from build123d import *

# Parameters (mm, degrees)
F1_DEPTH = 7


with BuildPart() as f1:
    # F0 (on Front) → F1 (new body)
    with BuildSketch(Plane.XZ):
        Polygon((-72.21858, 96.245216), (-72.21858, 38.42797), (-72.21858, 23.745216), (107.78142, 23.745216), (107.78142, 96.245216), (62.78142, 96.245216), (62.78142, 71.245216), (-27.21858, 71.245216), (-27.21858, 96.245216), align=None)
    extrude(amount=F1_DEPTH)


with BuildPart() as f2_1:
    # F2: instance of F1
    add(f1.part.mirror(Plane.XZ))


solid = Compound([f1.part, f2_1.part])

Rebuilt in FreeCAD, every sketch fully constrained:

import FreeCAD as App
import Part
import Sketcher

V = App.Vector


def add_polygon(sketch, points):
    """Adds a closed chain of lines whose ends are joined by coincident constraints."""
    first, n = sketch.GeometryCount, len(points)
    for a, b in zip(points, points[1:] + points[:1]):
        sketch.addGeometry(Part.LineSegment(App.Vector(*a, 0), App.Vector(*b, 0)), False)
    for i in range(n):
        sketch.addConstraint(Sketcher.Constraint("Coincident", first + i, 2, first + (i + 1) % n, 1))

doc = App.newDocument("Part")
params = doc.addObject("Spreadsheet::Sheet", "Params")
for row, (alias, value) in enumerate([
    ("sketch1_width", "180 mm"),
    ("sketch1_width2", "45 mm"),
    ("sketch1_height", "25 mm"),
    ("sketch1_height2", "72.5 mm"),
    ("pad1_length", "7 mm"),
], start=1):
    params.set(f"A{row}", alias)
    params.set(f"B{row}", "=" + value)
    params.setAlias(f"B{row}", alias)

body = doc.addObject("PartDesign::Body", "Body")

sketch1 = body.newObject("Sketcher::SketchObject", "Sketch")
sketch1.AttachmentSupport = (doc.getObject("XZ_Plane"), [""])
sketch1.MapMode = "FlatFace"
add_polygon(sketch1, [(-72, 96), (-72, 24), (108, 24), (108, 96), (63, 96), (63, 71), (-27, 71), (-27, 96)])
sketch1.addConstraint([
    Sketcher.Constraint("Vertical", 0),
    Sketcher.Constraint("Horizontal", 1),
    Sketcher.Constraint("Vertical", 2),
    Sketcher.Constraint("Horizontal", 3),
    Sketcher.Constraint("Vertical", 4),
    Sketcher.Constraint("Horizontal", 5),
    Sketcher.Constraint("Vertical", 6),
    Sketcher.Constraint("Horizontal", 7),
    Sketcher.Constraint("Horizontal", 3, 2, 6, 2),
    Sketcher.Constraint("Equal", 3, 7),
    Sketcher.Constraint("DistanceX", 1, 1, 1, 2, 180.0),
    Sketcher.Constraint("DistanceX", 3, 2, 3, 1, 45.0),
    Sketcher.Constraint("DistanceY", 4, 2, 4, 1, 25.0),
    Sketcher.Constraint("DistanceY", 0, 2, 0, 1, 72.5),
    Sketcher.Constraint("DistanceX", 0, 2, -1, 1, 72.21858),
    Sketcher.Constraint("DistanceY", -1, 1, 0, 2, 23.745216),
])
sketch1.setExpression("Constraints[18]", "Params.sketch1_width")
sketch1.setExpression("Constraints[19]", "Params.sketch1_width2")
sketch1.setExpression("Constraints[20]", "Params.sketch1_height")
sketch1.setExpression("Constraints[21]", "Params.sketch1_height2")
pad1 = body.newObject("PartDesign::Pad", "Pad")
pad1.Profile = sketch1
pad1.setExpression("Length", "Params.pad1_length")
body2 = doc.addObject("PartDesign::Body", "Body001")
doc.recompute()

mirroring = doc.addObject("Part::Mirroring", "Mirroring")
mirroring.Source = body
mirroring.Base = V(0, 0, 0)
mirroring.Normal = V(0, -1, 0)
body2.BaseFeature = mirroring
doc.recompute()
mirroring.Visibility = False

doc.recompute()
